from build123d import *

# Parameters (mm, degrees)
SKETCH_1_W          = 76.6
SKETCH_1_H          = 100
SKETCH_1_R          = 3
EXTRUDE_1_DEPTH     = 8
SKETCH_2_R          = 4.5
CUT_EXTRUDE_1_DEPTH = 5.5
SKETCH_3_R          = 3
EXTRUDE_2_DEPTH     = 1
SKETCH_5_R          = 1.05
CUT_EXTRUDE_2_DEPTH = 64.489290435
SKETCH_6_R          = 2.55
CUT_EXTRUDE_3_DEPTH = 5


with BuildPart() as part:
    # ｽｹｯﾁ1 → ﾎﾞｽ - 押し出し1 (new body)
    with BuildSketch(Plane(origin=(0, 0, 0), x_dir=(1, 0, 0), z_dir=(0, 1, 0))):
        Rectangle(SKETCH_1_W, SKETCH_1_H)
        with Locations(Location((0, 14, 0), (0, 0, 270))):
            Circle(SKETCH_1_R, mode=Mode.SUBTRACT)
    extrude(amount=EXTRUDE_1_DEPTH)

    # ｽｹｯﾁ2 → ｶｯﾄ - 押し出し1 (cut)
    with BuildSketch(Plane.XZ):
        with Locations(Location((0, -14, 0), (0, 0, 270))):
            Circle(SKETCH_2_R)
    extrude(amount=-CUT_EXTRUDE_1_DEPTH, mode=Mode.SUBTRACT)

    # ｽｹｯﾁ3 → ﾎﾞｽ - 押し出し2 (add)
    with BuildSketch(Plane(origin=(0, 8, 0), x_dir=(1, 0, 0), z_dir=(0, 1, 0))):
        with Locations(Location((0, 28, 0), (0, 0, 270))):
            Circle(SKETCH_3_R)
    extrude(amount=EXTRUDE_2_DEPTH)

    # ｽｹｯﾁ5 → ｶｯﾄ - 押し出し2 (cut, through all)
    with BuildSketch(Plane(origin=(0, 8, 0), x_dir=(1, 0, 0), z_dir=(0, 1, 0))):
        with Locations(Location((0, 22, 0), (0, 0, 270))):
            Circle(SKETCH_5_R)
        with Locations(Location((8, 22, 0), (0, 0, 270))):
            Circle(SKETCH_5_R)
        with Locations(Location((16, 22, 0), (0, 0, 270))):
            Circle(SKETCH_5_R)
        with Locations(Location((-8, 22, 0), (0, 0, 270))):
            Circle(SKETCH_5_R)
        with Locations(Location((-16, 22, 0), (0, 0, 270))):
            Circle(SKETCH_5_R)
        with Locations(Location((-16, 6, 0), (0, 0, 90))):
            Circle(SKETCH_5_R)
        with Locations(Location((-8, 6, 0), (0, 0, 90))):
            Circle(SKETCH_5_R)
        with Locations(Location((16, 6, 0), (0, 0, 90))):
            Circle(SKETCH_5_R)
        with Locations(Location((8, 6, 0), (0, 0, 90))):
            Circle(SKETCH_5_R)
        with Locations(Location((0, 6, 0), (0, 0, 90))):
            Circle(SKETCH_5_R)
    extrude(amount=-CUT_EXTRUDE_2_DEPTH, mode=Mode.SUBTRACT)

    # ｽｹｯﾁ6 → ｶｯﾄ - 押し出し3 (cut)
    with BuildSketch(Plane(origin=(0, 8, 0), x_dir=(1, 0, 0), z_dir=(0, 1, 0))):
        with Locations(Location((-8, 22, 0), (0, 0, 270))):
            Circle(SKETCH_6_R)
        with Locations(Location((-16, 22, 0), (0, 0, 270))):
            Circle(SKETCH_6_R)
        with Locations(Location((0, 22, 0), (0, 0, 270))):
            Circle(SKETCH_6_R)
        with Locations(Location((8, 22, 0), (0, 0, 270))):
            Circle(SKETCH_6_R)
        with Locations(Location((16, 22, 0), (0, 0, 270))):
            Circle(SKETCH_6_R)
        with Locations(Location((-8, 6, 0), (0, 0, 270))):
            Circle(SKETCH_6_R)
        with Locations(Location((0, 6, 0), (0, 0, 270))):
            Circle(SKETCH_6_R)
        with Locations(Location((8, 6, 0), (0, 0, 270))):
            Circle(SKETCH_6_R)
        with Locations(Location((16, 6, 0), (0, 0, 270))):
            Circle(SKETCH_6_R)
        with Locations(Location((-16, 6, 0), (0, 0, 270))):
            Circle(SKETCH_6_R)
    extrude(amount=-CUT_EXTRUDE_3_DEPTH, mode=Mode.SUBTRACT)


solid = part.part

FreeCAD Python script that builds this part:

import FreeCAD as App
import Part
import Sketcher

V = App.Vector
Q = App.Units.Quantity

doc = App.newDocument("Part")
body = doc.addObject("PartDesign::Body", "Body")

# Sketch on XZ plane
sketch1 = body.newObject("Sketcher::SketchObject", "Sketch")
sketch1.AttachmentSupport = (doc.getObject("XZ_Plane"), [""])
sketch1.MapMode = "FlatFace"
sketch1.addGeometry([
    Part.LineSegment(V(-38.3, -50, 0), V(-38.3, 50, 0)),  # 0
    Part.LineSegment(V(-38.3, 50, 0), V(38.3, 50, 0)),  # 1
    Part.LineSegment(V(38.3, 50, 0), V(38.3, -50, 0)),  # 2
    Part.LineSegment(V(38.3, -50, 0), V(-38.3, -50, 0)),  # 3
    Part.Circle(V(0, -14, 0), V(0, 0, 1), 3),  # 4
], False)
sketch1.addConstraint([
    Sketcher.Constraint("Coincident", 0, 2, 1, 1),
    Sketcher.Constraint("Coincident", 1, 2, 2, 1),
    Sketcher.Constraint("Coincident", 2, 2, 3, 1),
    Sketcher.Constraint("Coincident", 3, 2, 0, 1),
    Sketcher.Constraint("Vertical", 0),
    Sketcher.Constraint("Horizontal", 1),
    Sketcher.Constraint("Vertical", 2),
    Sketcher.Constraint("Horizontal", 3),
    Sketcher.Constraint("Symmetric", 0, 2, 2, 2, -1, 1),
    Sketcher.Constraint("PointOnObject", 4, 3, -2),
    Sketcher.Constraint("Diameter", 4, Q("6 mm")),
    Sketcher.Constraint("DistanceY", 0, 1, 0, 2, Q("100 mm")),
    Sketcher.Constraint("DistanceX", 1, 1, 1, 2, Q("76.6 mm")),
    Sketcher.Constraint("DistanceY", 4, 3, -1, 1, Q("14 mm")),
])
pad1 = body.newObject("PartDesign::Pad", "Pad")
pad1.Profile = sketch1
pad1.Length = 8
pad1.Reversed = True

# Sketch on XZ plane
sketch2 = body.newObject("Sketcher::SketchObject", "Sketch001")
sketch2.AttachmentSupport = (doc.getObject("XZ_Plane"), [""])
sketch2.MapMode = "FlatFace"
sketch2.addGeometry(Part.Circle(V(0, -14, 0), V(0, 0, 1), 4.5), False)
sketch2.addConstraint([
    Sketcher.Constraint("PointOnObject", 0, 3, -2),
    Sketcher.Constraint("Diameter", 0, Q("9 mm")),
    Sketcher.Constraint("DistanceY", 0, 3, -1, 1, Q("14 mm")),
])
pocket1 = body.newObject("PartDesign::Pocket", "Pocket")
pocket1.Profile = sketch2
pocket1.Length = 5.5

# Sketch on XZ plane
sketch3 = body.newObject("Sketcher::SketchObject", "Sketch002")
sketch3.AttachmentSupport = (doc.getObject("XZ_Plane"), [""])
sketch3.MapMode = "FlatFace"
sketch3.AttachmentOffset = App.Placement(V(0, 0, -8), App.Rotation())
sketch3.addGeometry(Part.Circle(V(0, -28, 0), V(0, 0, 1), 3), False)
sketch3.addConstraint([
    Sketcher.Constraint("PointOnObject", 0, 3, -2),
    Sketcher.Constraint("Diameter", 0, Q("6 mm")),
    Sketcher.Constraint("DistanceY", 0, 3, -1, 1, Q("28 mm")),
])
pad2 = body.newObject("PartDesign::Pad", "Pad001")
pad2.Profile = sketch3
pad2.Length = 1
pad2.Reversed = True

# Sketch on XZ plane
sketch4 = body.newObject("Sketcher::SketchObject", "Sketch003")
sketch4.AttachmentSupport = (doc.getObject("XZ_Plane"), [""])
sketch4.MapMode = "FlatFace"
sketch4.AttachmentOffset = App.Placement(V(0, 0, -8), App.Rotation())
sketch4.addGeometry([
    Part.Circle(V(0, -22, 0), V(0, 0, 1), 1.05),  # 0
    Part.Circle(V(8, -22, 0), V(0, 0, 1), 1.05),  # 1
    Part.Circle(V(16, -22, 0), V(0, 0, 1), 1.05),  # 2
    Part.Circle(V(-8, -22, 0), V(0, 0, 1), 1.05),  # 3
    Part.Circle(V(-16, -22, 0), V(0, 0, 1), 1.05),  # 4
    Part.Circle(V(-16, -6, 0), V(0, 0, 1), 1.05),  # 5
    Part.Circle(V(-8, -6, 0), V(0, 0, 1), 1.05),  # 6
    Part.Circle(V(16, -6, 0), V(0, 0, 1), 1.05),  # 7
    Part.Circle(V(8, -6, 0), V(0, 0, 1), 1.05),  # 8
    Part.Circle(V(0, -6, 0), V(0, 0, 1), 1.05),  # 9
], False)
sketch4.addConstraint([
    Sketcher.Constraint("Equal", 0, 1),
    Sketcher.Constraint("Equal", 1, 2),
    Sketcher.Constraint("Equal", 2, 3),
    Sketcher.Constraint("Equal", 3, 4),
    Sketcher.Constraint("Equal", 4, 5),
    Sketcher.Constraint("Equal", 5, 6),
    Sketcher.Constraint("Equal", 6, 7),
    Sketcher.Constraint("Equal", 7, 8),
    Sketcher.Constraint("Equal", 8, 9),
    Sketcher.Constraint("Symmetric", 1, 3, 3, 3, -2),
    Sketcher.Constraint("Symmetric", 2, 3, 4, 3, -2),
    Sketcher.Constraint("Symmetric", 5, 3, 7, 3, -2),
    Sketcher.Constraint("Symmetric", 6, 3, 8, 3, -2),
    Sketcher.Constraint("PointOnObject", 0, 3, -2),
    Sketcher.Constraint("PointOnObject", 9, 3, -2),
    Sketcher.Constraint("Horizontal", 0, 3, 1, 3),
    Sketcher.Constraint("Horizontal", 1, 3, 2, 3),
    Sketcher.Constraint("Horizontal", 5, 3, 6, 3),
    Sketcher.Constraint("Horizontal", 8, 3, 9, 3),
    Sketcher.Constraint("Vertical", 4, 3, 5, 3),
    Sketcher.Constraint("Vertical", 3, 3, 6, 3),
    Sketcher.Constraint("Diameter", 0, Q("2.1 mm")),
    Sketcher.Constraint("DistanceY", 0, 3, -1, 1, Q("22 mm")),
    Sketcher.Constraint("DistanceX", -1, 1, 1, 3, Q("8 mm")),
    Sketcher.Constraint("DistanceX", -1, 1, 2, 3, Q("16 mm")),
    Sketcher.Constraint("DistanceY", 5, 3, -1, 1, Q("6 mm")),
])
pocket2 = body.newObject("PartDesign::Pocket", "Pocket001")
pocket2.Profile = sketch4
pocket2.Type = "ThroughAll"
pocket2.Reversed = True

# Sketch on XZ plane
sketch5 = body.newObject("Sketcher::SketchObject", "Sketch004")
sketch5.AttachmentSupport = (doc.getObject("XZ_Plane"), [""])
sketch5.MapMode = "FlatFace"
sketch5.AttachmentOffset = App.Placement(V(0, 0, -8), App.Rotation())
sketch5.addGeometry([
    Part.Circle(V(-8, -22, 0), V(0, 0, 1), 2.55),  # 0
    Part.Circle(V(-16, -22, 0), V(0, 0, 1), 2.55),  # 1
    Part.Circle(V(0, -22, 0), V(0, 0, 1), 2.55),  # 2
    Part.Circle(V(8, -22, 0), V(0, 0, 1), 2.55),  # 3
    Part.Circle(V(16, -22, 0), V(0, 0, 1), 2.55),  # 4
    Part.Circle(V(-8, -6, 0), V(0, 0, 1), 2.55),  # 5
    Part.Circle(V(0, -6, 0), V(0, 0, 1), 2.55),  # 6
    Part.Circle(V(8, -6, 0), V(0, 0, 1), 2.55),  # 7
    Part.Circle(V(16, -6, 0), V(0, 0, 1), 2.55),  # 8
    Part.Circle(V(-16, -6, 0), V(0, 0, 1), 2.55),  # 9
], False)
sketch5.addConstraint([
    Sketcher.Constraint("Equal", 0, 1),
    Sketcher.Constraint("Equal", 1, 2),
    Sketcher.Constraint("Equal", 2, 3),
    Sketcher.Constraint("Equal", 3, 4),
    Sketcher.Constraint("Equal", 4, 5),
    Sketcher.Constraint("Equal", 5, 6),
    Sketcher.Constraint("Equal", 6, 7),
    Sketcher.Constraint("Equal", 7, 8),
    Sketcher.Constraint("Equal", 8, 9),
    Sketcher.Constraint("Symmetric", 0, 3, 3, 3, -2),
    Sketcher.Constraint("Symmetric", 1, 3, 4, 3, -2),
    Sketcher.Constraint("Symmetric", 5, 3, 7, 3, -2),
    Sketcher.Constraint("Symmetric", 8, 3, 9, 3, -2),
    Sketcher.Constraint("PointOnObject", 2, 3, -2),
    Sketcher.Constraint("PointOnObject", 6, 3, -2),
    Sketcher.Constraint("Horizontal", 0, 3, 1, 3),
    Sketcher.Constraint("Horizontal", 1, 3, 2, 3),
    Sketcher.Constraint("Horizontal", 5, 3, 6, 3),
    Sketcher.Constraint("Horizontal", 7, 3, 8, 3),
    Sketcher.Constraint("Vertical", 0, 3, 5, 3),
    Sketcher.Constraint("Vertical", 4, 3, 8, 3),
    Sketcher.Constraint("Diameter", 0, Q("5.1 mm")),
    Sketcher.Constraint("DistanceX", 0, 3, -1, 1, Q("8 mm")),
    Sketcher.Constraint("DistanceY", 0, 3, -1, 1, Q("22 mm")),
    Sketcher.Constraint("DistanceX", 1, 3, -1, 1, Q("16 mm")),
    Sketcher.Constraint("DistanceY", 5, 3, -1, 1, Q("6 mm")),
])
pocket3 = body.newObject("PartDesign::Pocket", "Pocket002")
pocket3.Profile = sketch5
pocket3.Length = 5
pocket3.Reversed = True

doc.recompute()
